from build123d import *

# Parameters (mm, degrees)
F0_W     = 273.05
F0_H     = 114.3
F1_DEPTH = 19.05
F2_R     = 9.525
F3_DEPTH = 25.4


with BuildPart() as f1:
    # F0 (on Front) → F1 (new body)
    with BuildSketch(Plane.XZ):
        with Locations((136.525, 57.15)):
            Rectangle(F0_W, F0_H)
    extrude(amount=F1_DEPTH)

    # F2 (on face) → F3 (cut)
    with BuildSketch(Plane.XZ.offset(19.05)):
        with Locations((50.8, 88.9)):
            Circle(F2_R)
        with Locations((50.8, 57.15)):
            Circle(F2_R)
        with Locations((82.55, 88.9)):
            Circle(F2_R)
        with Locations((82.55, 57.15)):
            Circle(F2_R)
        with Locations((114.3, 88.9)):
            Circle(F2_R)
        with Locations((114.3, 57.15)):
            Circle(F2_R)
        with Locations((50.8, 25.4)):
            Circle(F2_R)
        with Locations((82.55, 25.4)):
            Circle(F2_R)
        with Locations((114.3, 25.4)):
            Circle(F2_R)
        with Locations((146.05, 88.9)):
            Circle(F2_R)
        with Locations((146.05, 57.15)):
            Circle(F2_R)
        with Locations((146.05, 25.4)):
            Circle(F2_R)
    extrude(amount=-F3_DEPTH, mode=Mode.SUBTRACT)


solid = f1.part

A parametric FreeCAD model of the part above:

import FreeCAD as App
import Part
import Sketcher

V = App.Vector
Q = App.Units.Quantity

doc = App.newDocument("Part")
body = doc.addObject("PartDesign::Body", "Body")

sketch1 = body.newObject("Sketcher::SketchObject", "Sketch")
sketch1.AttachmentSupport = (doc.getObject("XZ_Plane"), [""])
sketch1.MapMode = "FlatFace"
sketch1.addGeometry([
    Part.LineSegment(V(0, 114, 0), V(0, 0, 0)),
    Part.LineSegment(V(0, 0, 0), V(273, 0, 0)),
    Part.LineSegment(V(273, 0, 0), V(273, 114, 0)),
    Part.LineSegment(V(273, 114, 0), V(0, 114, 0)),
], False)
sketch1.addConstraint([
    Sketcher.Constraint("Coincident", 0, 2, 1, 1),
    Sketcher.Constraint("Coincident", 1, 2, 2, 1),
    Sketcher.Constraint("Coincident", 2, 2, 3, 1),
    Sketcher.Constraint("Coincident", 3, 2, 0, 1),
    Sketcher.Constraint("Vertical", 0),
    Sketcher.Constraint("Horizontal", 1),
    Sketcher.Constraint("Vertical", 2),
    Sketcher.Constraint("Horizontal", 3),
    Sketcher.Constraint("Coincident", 0, 2, -1, 1),
    Sketcher.Constraint("DistanceY", 0, 2, 0, 1, Q("4.5 in")),
    Sketcher.Constraint("DistanceX", 1, 1, 1, 2, Q("10.75 in")),
])
pad1 = body.newObject("PartDesign::Pad", "Pad")
pad1.Profile = sketch1
pad1.Length = Q("0.75 in")

sketch2 = body.newObject("Sketcher::SketchObject", "Sketch001")
sketch2.AttachmentSupport = (doc.getObject("XZ_Plane"), [""])
sketch2.MapMode = "FlatFace"
sketch2.AttachmentOffset = App.Placement(V(0, 0, 0.75 * 25.4), App.Rotation())
sketch2.addGeometry([
    Part.Circle(V(51, 89, 0), V(0, 0, 1), 10),
    Part.Circle(V(51, 57, 0), V(0, 0, 1), 10),
    Part.Circle(V(83, 89, 0), V(0, 0, 1), 10),
    Part.Circle(V(83, 57, 0), V(0, 0, 1), 10),
    Part.Circle(V(114, 89, 0), V(0, 0, 1), 10),
    Part.Circle(V(114, 57, 0), V(0, 0, 1), 10),
    Part.Circle(V(51, 25, 0), V(0, 0, 1), 10),
    Part.Circle(V(83, 25, 0), V(0, 0, 1), 10),
    Part.Circle(V(114, 25, 0), V(0, 0, 1), 10),
    Part.Circle(V(146, 89, 0), V(0, 0, 1), 10),
    Part.Circle(V(146, 57, 0), V(0, 0, 1), 10),
    Part.Circle(V(146, 25, 0), V(0, 0, 1), 10),
], False)
sketch2.addConstraint([
    Sketcher.Constraint("Equal", 0, 1),
    Sketcher.Constraint("Equal", 1, 2),
    Sketcher.Constraint("Equal", 2, 3),
    Sketcher.Constraint("Equal", 3, 4),
    Sketcher.Constraint("Equal", 4, 5),
    Sketcher.Constraint("Equal", 5, 6),
    Sketcher.Constraint("Equal", 6, 7),
    Sketcher.Constraint("Equal", 7, 8),
    Sketcher.Constraint("Equal", 8, 9),
    Sketcher.Constraint("Equal", 9, 10),
    Sketcher.Constraint("Equal", 10, 11),
    Sketcher.Constraint("Horizontal", 0, 3, 2, 3),
    Sketcher.Constraint("Horizontal", 1, 3, 3, 3),
    Sketcher.Constraint("Horizontal", 2, 3, 4, 3),
    Sketcher.Constraint("Horizontal", 3, 3, 5, 3),
    Sketcher.Constraint("Horizontal", 6, 3, 7, 3),
    Sketcher.Constraint("Horizontal", 7, 3, 8, 3),
    Sketcher.Constraint("Horizontal", 4, 3, 9, 3),
    Sketcher.Constraint("Horizontal", 5, 3, 10, 3),
    Sketcher.Constraint("Horizontal", 8, 3, 11, 3),
    Sketcher.Constraint("Vertical", 0, 3, 1, 3),
    Sketcher.Constraint("Vertical", 2, 3, 3, 3),
    Sketcher.Constraint("Vertical", 4, 3, 5, 3),
    Sketcher.Constraint("Vertical", 1, 3, 6, 3),
    Sketcher.Constraint("Vertical", 3, 3, 7, 3),
    Sketcher.Constraint("Vertical", 5, 3, 8, 3),
    Sketcher.Constraint("Vertical", 9, 3, 10, 3),
    Sketcher.Constraint("Vertical", 10, 3, 11, 3),
    Sketcher.Constraint("Diameter", 0, Q("0.75 in")),
    Sketcher.Constraint("DistanceX", -1, 1, 0, 3, Q("2 in")),
    Sketcher.Constraint("DistanceY", -1, 1, 6, 3, Q("1 in")),
    Sketcher.Constraint("DistanceY", -1, 1, 0, 3, Q("3.5 in")),
    Sketcher.Constraint("DistanceX", -1, 1, 4, 3, Q("4.5 in")),
    Sketcher.Constraint("DistanceX", 2, 3, 9, 3, Q("2.5 in")),
    Sketcher.Constraint("DistanceY", -1, 1, 1, 3, Q("2.25 in")),
    Sketcher.Constraint("DistanceX", -1, 1, 2, 3, Q("3.25 in")),
])
pocket1 = body.newObject("PartDesign::Pocket", "Pocket")
pocket1.Profile = sketch2
pocket1.Length = Q("1 in")

doc.recompute()
